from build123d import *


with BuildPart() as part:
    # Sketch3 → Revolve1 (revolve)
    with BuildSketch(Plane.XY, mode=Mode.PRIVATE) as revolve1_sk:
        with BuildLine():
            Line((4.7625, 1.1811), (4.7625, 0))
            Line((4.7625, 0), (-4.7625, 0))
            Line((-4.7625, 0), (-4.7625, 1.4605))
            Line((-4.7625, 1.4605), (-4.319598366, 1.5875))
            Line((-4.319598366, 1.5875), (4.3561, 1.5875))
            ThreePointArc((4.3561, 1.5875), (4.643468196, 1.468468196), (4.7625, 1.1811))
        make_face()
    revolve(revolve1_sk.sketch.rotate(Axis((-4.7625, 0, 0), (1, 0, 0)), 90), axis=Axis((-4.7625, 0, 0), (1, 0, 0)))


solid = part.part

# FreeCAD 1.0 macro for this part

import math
import FreeCAD as App
import Part
import Sketcher
Q = App.Units.Quantity

doc = App.newDocument("Part")
body = doc.addObject("PartDesign::Body", "Body")

# Sketch on XY plane
sketch1 = body.newObject("Sketcher::SketchObject", "Sketch")
sketch1.AttachmentSupport = (doc.getObject("XY_Plane"), [""])
sketch1.MapMode = "FlatFace"
sketch1.addGeometry([
    Part.LineSegment(App.Vector(4.7625, 0, 0), App.Vector(4.7625, 1.1811, 0)),  # 0
    Part.ArcOfCircle(Part.Circle(App.Vector(4.3561, 1.1811, 0), App.Vector(0, 0, 1), 0.4064), math.radians(0), math.radians(90)),  # 1
    Part.LineSegment(App.Vector(4.3561, 1.5875, 0), App.Vector(-4.319598, 1.5875, 0)),  # 2
    Part.LineSegment(App.Vector(-4.319598, 1.5875, 0), App.Vector(-4.7625, 1.4605, 0)),  # 3
    Part.LineSegment(App.Vector(-4.7625, 1.4605, 0), App.Vector(-4.7625, 0, 0)),  # 4
    Part.LineSegment(App.Vector(-4.7625, 0, 0), App.Vector(4.7625, 0, 0)),  # 5
], False)
sketch1.addConstraint([
    Sketcher.Constraint("Tangent", 0, 2, 1, 1),
    Sketcher.Constraint("Tangent", 1, 2, 2, 1),
    Sketcher.Constraint("Coincident", 2, 2, 3, 1),
    Sketcher.Constraint("Coincident", 3, 2, 4, 1),
    Sketcher.Constraint("Coincident", 4, 2, 5, 1),
    Sketcher.Constraint("Coincident", 5, 2, 0, 1),
    Sketcher.Constraint("Vertical", 0),
    Sketcher.Constraint("Horizontal", 2),
    Sketcher.Constraint("Vertical", 4),
    Sketcher.Constraint("Horizontal", 5),
    Sketcher.Constraint("Symmetric", 4, 2, 5, 2, -1, 1),
    Sketcher.Constraint("Angle", 3, Q("-164 deg")),
    Sketcher.Constraint("Radius", 1, Q("0.016 in")),
    Sketcher.Constraint("DistanceX", 5, 1, 5, 2, Q("0.375 in")),
    Sketcher.Constraint("DistanceY", 0, 1, 0, 2, Q("0.0465 in")),
    Sketcher.Constraint("DistanceY", 4, 2, 4, 1, Q("0.0575 in")),
])
revolution = body.newObject("PartDesign::Revolution", "Revolution")
revolution.Profile = sketch1
revolution.ReferenceAxis = (sketch1, ["H_Axis"])
revolution.Angle = 360

doc.recompute()
